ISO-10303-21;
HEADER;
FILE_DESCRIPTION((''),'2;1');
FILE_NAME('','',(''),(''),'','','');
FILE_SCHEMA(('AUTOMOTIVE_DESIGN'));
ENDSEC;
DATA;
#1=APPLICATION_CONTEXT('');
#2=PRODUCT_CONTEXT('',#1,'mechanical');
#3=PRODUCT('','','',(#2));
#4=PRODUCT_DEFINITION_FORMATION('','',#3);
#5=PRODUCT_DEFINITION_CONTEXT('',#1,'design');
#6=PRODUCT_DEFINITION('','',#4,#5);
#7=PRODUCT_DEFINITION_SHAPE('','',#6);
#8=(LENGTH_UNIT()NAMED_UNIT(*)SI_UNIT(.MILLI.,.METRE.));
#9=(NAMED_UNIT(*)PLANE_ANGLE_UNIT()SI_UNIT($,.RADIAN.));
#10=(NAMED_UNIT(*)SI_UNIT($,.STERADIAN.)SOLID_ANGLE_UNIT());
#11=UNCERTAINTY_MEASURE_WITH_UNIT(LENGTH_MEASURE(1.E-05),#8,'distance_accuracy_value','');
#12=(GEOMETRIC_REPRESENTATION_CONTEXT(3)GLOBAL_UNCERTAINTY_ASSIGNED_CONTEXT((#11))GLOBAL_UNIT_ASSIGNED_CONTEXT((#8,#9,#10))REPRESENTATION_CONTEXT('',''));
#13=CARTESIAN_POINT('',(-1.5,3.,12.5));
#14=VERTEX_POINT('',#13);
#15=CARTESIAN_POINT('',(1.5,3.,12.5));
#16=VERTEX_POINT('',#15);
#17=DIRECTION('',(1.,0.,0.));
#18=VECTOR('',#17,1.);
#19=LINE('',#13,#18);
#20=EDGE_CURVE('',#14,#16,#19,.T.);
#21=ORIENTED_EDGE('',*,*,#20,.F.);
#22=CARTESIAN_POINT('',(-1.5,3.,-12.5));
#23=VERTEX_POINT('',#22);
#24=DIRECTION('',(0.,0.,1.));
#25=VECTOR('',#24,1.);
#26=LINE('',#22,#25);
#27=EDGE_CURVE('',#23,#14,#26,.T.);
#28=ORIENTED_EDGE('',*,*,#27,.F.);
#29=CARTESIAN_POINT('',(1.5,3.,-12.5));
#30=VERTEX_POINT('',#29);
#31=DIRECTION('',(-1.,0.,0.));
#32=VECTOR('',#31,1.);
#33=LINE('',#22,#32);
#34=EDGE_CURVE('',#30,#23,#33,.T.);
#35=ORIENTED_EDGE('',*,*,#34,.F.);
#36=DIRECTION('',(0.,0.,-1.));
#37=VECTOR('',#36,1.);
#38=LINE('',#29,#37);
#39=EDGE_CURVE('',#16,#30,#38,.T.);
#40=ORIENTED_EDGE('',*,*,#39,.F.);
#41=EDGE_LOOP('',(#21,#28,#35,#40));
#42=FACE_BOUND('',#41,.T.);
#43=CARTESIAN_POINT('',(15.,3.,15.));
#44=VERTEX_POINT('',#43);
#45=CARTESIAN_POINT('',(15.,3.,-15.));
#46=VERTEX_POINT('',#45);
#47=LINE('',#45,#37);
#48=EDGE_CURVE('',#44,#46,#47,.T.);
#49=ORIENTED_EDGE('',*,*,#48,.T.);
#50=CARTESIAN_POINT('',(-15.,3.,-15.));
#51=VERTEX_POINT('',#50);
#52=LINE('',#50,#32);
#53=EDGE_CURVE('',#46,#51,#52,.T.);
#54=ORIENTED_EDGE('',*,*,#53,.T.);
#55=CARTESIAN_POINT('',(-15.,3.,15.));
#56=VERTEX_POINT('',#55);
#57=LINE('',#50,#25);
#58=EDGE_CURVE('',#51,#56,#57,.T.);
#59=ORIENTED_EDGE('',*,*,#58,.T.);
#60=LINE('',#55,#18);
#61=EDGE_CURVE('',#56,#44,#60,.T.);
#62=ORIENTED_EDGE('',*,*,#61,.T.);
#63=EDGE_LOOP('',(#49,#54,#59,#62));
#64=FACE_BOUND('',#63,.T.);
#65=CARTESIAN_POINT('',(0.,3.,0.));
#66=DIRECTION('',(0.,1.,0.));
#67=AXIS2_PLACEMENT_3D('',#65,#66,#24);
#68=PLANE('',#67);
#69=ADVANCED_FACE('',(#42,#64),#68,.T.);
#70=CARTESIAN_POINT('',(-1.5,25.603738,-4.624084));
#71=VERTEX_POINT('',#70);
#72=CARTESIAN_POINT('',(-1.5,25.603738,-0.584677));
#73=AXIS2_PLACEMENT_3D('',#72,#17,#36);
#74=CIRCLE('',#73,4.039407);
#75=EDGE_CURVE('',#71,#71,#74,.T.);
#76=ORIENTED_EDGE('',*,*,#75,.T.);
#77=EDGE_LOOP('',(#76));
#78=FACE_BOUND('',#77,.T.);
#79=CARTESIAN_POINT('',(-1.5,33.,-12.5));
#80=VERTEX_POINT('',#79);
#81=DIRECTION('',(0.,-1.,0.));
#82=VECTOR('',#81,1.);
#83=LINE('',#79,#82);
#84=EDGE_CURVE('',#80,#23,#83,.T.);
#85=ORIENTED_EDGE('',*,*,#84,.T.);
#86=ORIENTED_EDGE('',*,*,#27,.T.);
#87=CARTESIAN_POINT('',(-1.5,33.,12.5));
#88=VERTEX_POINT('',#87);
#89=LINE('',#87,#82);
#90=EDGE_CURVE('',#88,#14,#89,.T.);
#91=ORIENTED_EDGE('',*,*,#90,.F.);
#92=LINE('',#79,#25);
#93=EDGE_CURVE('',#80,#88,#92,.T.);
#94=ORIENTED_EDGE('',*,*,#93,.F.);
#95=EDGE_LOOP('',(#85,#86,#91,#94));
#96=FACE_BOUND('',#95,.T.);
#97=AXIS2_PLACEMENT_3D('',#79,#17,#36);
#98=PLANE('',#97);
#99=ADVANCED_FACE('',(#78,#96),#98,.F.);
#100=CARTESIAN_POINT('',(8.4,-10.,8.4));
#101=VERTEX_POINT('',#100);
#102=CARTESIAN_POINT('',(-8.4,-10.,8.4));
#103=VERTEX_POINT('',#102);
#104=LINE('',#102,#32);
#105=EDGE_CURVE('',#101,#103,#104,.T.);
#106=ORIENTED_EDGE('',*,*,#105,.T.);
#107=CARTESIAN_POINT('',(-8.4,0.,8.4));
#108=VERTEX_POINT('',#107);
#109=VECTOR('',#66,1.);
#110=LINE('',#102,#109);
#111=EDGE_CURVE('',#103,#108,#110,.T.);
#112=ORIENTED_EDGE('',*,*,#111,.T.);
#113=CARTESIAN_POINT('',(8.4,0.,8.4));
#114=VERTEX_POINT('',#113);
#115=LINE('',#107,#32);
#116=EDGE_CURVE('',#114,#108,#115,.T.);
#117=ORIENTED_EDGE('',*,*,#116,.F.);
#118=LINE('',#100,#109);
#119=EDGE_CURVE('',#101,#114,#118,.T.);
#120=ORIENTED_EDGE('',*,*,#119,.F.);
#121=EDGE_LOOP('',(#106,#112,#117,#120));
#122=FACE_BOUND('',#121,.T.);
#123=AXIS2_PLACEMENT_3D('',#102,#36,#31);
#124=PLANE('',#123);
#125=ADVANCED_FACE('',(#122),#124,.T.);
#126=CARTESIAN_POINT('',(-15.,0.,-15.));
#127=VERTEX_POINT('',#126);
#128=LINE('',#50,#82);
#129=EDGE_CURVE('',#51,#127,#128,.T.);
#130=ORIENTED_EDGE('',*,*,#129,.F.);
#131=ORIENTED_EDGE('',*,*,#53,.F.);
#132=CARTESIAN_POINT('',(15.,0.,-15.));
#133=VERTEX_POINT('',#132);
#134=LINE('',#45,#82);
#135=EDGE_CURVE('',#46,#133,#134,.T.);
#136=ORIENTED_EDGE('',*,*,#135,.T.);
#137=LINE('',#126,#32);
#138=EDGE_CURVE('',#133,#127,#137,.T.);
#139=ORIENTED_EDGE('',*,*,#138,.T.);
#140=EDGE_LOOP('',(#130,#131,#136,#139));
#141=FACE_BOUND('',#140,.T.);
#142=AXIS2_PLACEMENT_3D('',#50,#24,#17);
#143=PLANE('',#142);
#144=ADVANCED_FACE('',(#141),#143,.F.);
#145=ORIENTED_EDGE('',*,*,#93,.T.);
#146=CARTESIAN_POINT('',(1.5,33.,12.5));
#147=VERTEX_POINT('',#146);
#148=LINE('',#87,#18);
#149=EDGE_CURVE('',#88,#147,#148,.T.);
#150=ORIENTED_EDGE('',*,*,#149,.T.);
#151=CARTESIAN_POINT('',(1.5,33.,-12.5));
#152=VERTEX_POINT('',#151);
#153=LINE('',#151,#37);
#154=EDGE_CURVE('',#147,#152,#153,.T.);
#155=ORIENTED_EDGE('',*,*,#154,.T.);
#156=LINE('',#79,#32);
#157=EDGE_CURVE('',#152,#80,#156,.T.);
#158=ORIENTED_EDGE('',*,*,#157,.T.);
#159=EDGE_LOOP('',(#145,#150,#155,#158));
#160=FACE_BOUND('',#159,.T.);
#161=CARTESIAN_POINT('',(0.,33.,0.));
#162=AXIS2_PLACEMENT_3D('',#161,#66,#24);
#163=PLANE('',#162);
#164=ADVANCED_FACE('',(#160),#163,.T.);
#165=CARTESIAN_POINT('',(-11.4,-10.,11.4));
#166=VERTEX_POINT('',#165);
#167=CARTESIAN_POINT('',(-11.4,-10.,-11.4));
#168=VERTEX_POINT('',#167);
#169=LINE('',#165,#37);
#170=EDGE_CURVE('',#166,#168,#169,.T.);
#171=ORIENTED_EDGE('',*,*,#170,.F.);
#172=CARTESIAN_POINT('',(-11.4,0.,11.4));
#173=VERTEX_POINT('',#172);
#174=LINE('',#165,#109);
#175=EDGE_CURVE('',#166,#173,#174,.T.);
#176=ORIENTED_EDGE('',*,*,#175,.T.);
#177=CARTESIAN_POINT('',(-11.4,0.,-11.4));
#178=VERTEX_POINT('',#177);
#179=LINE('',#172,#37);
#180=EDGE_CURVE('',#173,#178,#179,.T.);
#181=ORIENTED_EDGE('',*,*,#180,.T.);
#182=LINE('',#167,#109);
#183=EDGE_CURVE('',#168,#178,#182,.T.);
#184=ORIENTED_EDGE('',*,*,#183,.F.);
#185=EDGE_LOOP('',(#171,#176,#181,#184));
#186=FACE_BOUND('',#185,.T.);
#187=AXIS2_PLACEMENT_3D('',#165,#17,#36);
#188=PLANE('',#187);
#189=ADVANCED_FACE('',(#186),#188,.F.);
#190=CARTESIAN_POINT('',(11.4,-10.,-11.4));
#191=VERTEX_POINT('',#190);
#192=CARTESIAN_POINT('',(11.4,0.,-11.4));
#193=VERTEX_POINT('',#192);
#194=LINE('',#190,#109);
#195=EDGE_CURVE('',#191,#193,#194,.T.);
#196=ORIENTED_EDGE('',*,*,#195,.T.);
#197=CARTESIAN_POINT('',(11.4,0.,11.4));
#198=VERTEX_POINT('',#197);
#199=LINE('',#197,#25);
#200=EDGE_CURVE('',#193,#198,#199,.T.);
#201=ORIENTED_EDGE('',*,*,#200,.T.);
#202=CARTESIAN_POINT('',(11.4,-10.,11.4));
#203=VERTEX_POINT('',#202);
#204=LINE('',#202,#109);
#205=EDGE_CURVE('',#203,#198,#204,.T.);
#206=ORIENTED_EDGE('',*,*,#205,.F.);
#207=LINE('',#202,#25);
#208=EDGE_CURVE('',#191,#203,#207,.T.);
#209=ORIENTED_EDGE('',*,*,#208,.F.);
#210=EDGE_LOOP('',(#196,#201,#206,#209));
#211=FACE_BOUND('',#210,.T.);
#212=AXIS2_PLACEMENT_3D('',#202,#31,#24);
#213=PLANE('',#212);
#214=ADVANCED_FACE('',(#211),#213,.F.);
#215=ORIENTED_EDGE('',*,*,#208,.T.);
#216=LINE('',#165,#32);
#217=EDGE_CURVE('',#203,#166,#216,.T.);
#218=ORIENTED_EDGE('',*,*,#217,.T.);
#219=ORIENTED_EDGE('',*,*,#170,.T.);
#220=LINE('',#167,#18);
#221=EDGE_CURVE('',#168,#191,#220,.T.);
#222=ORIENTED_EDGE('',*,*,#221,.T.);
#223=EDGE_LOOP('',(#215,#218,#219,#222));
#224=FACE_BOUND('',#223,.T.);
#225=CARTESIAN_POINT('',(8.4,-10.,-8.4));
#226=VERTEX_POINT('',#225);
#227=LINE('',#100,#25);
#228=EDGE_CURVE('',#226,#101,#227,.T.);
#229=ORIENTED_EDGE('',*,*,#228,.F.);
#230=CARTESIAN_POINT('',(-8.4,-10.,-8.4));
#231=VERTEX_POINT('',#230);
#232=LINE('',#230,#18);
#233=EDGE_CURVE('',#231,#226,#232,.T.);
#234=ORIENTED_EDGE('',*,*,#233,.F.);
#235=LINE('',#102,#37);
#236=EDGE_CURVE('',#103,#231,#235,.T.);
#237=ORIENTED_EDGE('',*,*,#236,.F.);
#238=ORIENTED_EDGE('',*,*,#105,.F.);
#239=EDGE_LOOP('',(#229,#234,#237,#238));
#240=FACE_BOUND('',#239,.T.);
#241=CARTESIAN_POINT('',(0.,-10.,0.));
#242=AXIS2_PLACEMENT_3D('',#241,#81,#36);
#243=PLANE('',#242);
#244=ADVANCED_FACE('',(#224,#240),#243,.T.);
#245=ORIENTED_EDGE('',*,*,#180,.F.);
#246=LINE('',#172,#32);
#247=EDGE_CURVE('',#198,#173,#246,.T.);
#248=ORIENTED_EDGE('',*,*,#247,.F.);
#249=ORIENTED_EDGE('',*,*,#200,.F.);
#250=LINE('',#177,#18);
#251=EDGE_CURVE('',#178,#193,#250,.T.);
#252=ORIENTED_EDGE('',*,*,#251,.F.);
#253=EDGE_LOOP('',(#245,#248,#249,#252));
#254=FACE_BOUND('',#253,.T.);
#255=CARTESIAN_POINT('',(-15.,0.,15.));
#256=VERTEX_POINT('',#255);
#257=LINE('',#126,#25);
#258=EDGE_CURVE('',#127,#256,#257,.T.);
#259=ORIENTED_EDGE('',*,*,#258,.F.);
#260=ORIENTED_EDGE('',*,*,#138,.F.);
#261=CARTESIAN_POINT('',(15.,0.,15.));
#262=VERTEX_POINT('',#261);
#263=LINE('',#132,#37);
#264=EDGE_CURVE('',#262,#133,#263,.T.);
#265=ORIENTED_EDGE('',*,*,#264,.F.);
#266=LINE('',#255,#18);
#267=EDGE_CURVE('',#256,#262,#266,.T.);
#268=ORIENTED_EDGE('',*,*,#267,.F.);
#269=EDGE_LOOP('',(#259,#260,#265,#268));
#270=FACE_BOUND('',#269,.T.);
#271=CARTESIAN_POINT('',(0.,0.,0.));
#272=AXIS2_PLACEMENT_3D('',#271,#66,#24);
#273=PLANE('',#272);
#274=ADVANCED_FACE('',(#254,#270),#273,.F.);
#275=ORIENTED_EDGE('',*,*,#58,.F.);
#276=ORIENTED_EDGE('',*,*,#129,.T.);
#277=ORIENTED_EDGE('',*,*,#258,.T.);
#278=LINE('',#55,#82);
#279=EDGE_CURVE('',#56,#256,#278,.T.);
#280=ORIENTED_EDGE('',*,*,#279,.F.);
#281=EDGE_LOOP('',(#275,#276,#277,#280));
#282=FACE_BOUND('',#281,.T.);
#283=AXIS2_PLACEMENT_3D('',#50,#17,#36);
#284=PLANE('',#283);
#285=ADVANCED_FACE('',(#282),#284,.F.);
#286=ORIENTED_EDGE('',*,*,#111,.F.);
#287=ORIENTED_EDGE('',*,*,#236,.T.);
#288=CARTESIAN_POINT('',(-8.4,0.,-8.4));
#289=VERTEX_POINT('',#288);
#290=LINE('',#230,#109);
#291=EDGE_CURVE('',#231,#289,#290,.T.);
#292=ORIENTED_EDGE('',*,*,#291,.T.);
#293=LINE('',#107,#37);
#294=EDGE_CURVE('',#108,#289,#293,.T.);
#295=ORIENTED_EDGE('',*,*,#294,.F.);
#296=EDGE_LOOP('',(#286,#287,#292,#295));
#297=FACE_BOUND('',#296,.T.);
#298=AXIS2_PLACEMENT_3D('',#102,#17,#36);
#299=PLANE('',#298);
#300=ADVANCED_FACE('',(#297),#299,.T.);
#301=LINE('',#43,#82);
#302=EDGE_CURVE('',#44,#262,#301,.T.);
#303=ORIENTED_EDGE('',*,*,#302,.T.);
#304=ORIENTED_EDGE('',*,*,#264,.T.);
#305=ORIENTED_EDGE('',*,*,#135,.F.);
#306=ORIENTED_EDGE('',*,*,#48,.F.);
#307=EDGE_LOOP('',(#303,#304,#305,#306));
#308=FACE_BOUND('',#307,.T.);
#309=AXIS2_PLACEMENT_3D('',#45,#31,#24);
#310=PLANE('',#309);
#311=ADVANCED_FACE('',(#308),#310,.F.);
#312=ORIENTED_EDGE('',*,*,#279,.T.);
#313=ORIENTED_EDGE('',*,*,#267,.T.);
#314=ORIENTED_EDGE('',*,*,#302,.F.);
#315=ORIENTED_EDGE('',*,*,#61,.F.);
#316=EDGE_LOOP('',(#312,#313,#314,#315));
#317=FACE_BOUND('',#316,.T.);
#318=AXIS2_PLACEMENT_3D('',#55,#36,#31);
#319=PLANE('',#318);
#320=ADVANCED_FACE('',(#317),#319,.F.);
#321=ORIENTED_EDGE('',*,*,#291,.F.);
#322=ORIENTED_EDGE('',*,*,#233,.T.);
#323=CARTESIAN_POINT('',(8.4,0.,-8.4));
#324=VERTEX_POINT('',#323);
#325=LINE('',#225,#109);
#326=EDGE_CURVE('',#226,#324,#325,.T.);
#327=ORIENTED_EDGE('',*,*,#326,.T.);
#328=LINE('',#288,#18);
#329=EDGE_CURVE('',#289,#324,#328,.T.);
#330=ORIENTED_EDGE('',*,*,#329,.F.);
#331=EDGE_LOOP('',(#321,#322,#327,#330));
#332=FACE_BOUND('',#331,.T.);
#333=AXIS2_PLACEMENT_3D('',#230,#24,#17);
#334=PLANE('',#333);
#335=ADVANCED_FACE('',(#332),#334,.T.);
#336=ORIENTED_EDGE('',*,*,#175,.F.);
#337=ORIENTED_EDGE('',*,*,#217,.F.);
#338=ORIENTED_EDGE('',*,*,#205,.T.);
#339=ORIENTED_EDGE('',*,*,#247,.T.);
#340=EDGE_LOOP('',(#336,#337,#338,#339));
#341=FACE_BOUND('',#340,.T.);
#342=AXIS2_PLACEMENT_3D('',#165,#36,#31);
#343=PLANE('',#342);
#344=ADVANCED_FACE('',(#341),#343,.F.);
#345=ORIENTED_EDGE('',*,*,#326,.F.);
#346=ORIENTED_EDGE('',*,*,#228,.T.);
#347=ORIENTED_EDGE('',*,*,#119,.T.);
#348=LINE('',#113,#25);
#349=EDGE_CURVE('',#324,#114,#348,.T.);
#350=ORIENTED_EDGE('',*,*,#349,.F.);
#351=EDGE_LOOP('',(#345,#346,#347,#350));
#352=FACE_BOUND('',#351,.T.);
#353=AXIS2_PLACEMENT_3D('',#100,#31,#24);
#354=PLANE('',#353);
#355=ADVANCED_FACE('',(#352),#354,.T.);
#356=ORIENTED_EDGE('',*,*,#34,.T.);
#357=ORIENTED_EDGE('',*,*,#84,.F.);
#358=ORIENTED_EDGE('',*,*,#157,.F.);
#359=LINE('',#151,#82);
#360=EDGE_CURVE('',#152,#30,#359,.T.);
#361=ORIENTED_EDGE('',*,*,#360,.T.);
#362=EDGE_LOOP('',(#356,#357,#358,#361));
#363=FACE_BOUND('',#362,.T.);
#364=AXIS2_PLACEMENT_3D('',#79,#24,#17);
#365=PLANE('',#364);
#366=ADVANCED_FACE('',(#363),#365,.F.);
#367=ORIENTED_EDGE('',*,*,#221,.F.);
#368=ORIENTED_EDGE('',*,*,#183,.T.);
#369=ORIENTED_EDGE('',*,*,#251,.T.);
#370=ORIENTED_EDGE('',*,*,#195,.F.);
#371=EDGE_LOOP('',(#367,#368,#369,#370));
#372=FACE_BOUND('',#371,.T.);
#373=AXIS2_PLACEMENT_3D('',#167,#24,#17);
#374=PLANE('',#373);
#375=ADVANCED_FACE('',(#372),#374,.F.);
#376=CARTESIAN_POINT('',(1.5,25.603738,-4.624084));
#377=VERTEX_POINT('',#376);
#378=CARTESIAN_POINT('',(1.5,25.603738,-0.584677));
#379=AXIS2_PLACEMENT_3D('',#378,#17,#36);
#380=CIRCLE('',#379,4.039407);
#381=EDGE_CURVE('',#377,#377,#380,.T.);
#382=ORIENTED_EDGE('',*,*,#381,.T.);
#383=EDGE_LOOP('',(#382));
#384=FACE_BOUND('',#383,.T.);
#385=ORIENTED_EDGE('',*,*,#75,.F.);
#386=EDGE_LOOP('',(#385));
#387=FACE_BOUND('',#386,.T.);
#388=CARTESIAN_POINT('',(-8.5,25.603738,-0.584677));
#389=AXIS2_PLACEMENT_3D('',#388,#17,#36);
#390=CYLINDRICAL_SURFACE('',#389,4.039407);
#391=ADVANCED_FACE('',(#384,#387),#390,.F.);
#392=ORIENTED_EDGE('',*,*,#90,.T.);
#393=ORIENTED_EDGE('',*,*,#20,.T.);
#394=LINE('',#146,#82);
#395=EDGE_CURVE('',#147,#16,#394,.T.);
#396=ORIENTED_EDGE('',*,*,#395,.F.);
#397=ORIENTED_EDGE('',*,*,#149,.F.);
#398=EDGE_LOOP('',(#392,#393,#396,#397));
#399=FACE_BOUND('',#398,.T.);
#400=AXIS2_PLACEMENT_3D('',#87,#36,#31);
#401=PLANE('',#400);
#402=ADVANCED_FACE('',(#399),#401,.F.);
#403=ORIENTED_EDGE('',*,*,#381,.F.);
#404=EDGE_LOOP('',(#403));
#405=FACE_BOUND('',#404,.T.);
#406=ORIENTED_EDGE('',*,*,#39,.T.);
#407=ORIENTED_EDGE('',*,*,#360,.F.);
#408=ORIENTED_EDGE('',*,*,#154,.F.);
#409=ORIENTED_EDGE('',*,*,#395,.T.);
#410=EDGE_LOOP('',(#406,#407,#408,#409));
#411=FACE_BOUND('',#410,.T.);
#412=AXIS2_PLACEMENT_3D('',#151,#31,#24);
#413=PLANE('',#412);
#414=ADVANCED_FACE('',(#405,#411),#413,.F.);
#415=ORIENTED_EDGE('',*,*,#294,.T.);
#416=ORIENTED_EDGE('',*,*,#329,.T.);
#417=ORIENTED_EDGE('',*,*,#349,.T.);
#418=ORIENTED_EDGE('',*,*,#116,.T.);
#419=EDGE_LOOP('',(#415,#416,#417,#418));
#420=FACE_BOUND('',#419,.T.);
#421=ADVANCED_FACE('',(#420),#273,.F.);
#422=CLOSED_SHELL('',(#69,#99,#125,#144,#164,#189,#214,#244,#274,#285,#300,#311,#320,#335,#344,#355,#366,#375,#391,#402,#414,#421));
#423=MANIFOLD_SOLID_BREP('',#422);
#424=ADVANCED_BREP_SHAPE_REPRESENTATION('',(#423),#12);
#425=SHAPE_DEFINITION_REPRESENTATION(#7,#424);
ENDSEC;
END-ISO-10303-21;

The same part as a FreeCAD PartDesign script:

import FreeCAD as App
import Part
import Sketcher

V = App.Vector
Q = App.Units.Quantity

doc = App.newDocument("Part")
body = doc.addObject("PartDesign::Body", "Body")

# Sketch on XZ plane
sketch1 = body.newObject("Sketcher::SketchObject", "Sketch")
sketch1.AttachmentSupport = (doc.getObject("XZ_Plane"), [""])
sketch1.MapMode = "FlatFace"
sketch1.addGeometry([
    Part.LineSegment(V(-15, -15, 0), V(-15, 15, 0)),
    Part.LineSegment(V(-15, 15, 0), V(15, 15, 0)),
    Part.LineSegment(V(15, 15, 0), V(15, -15, 0)),
    Part.LineSegment(V(15, -15, 0), V(-15, -15, 0)),
], False)
sketch1.addConstraint([
    Sketcher.Constraint("Coincident", 0, 2, 1, 1),
    Sketcher.Constraint("Coincident", 1, 2, 2, 1),
    Sketcher.Constraint("Coincident", 2, 2, 3, 1),
    Sketcher.Constraint("Coincident", 3, 2, 0, 1),
    Sketcher.Constraint("Vertical", 0),
    Sketcher.Constraint("Horizontal", 1),
    Sketcher.Constraint("Vertical", 2),
    Sketcher.Constraint("Horizontal", 3),
    Sketcher.Constraint("Symmetric", 0, 2, 2, 2, -1, 1),
    Sketcher.Constraint("Equal", 3, 0),
    Sketcher.Constraint("DistanceX", 1, 1, 1, 2, Q("30 mm")),
])
pad1 = body.newObject("PartDesign::Pad", "Pad")
pad1.Profile = sketch1
pad1.Length = 3
pad1.Reversed = True

# Sketch on XZ plane
sketch2 = body.newObject("Sketcher::SketchObject", "Sketch001")
sketch2.AttachmentSupport = (doc.getObject("XZ_Plane"), [""])
sketch2.MapMode = "FlatFace"
sketch2.AttachmentOffset = App.Placement(V(0, 0, -3), App.Rotation())
sketch2.addGeometry([
    Part.LineSegment(V(-1.5, -12.5, 0), V(-1.5, 12.5, 0)),
    Part.LineSegment(V(-1.5, 12.5, 0), V(1.5, 12.5, 0)),
    Part.LineSegment(V(1.5, 12.5, 0), V(1.5, -12.5, 0)),
    Part.LineSegment(V(1.5, -12.5, 0), V(-1.5, -12.5, 0)),
], False)
sketch2.addConstraint([
    Sketcher.Constraint("Coincident", 0, 2, 1, 1),
    Sketcher.Constraint("Coincident", 1, 2, 2, 1),
    Sketcher.Constraint("Coincident", 2, 2, 3, 1),
    Sketcher.Constraint("Coincident", 3, 2, 0, 1),
    Sketcher.Constraint("Vertical", 0),
    Sketcher.Constraint("Horizontal", 1),
    Sketcher.Constraint("Vertical", 2),
    Sketcher.Constraint("Horizontal", 3),
    Sketcher.Constraint("Symmetric", 0, 2, 2, 2, -1, 1),
    Sketcher.Constraint("DistanceX", 1, 1, 1, 2, Q("3 mm")),
    Sketcher.Constraint("DistanceY", 0, 1, 0, 2, Q("25 mm")),
])
pad2 = body.newObject("PartDesign::Pad", "Pad001")
pad2.Profile = sketch2
pad2.Length = 30
pad2.Reversed = True

# Sketch on YZ plane
sketch3 = body.newObject("Sketcher::SketchObject", "Sketch002")
sketch3.AttachmentSupport = (doc.getObject("YZ_Plane"), [""])
sketch3.MapMode = "FlatFace"
sketch3.AttachmentOffset = App.Placement(V(0, 0, 1.5), App.Rotation())
sketch3.addGeometry(Part.Circle(V(25.6, -0.6, 0), V(0, 0, 1), 4), False)
sketch3.addConstraint([
    Sketcher.Constraint("Diameter", 0, Q("8.078814 mm")),
    Sketcher.Constraint("DistanceX", -1, 1, 0, 3, Q("25.603738 mm")),
    Sketcher.Constraint("DistanceY", 0, 3, -1, 1, Q("0.584677 mm")),
])
pocket1 = body.newObject("PartDesign::Pocket", "Pocket")
pocket1.Profile = sketch3
pocket1.Length = 10

# Sketch on XZ plane
sketch4 = body.newObject("Sketcher::SketchObject", "Sketch003")
sketch4.AttachmentSupport = (doc.getObject("XZ_Plane"), [""])
sketch4.MapMode = "FlatFace"
sketch4.addGeometry([
    Part.LineSegment(V(-11, 11, 0), V(-11, -11, 0)),  # 0
    Part.LineSegment(V(-11, -11, 0), V(11, -11, 0)),  # 1
    Part.LineSegment(V(11, -11, 0), V(11, 11, 0)),  # 2
    Part.LineSegment(V(11, 11, 0), V(-11, 11, 0)),  # 3
    Part.LineSegment(V(8, -8, 0), V(-8, -8, 0)),  # 4
    Part.LineSegment(V(-8, -8, 0), V(-8, 8, 0)),  # 5
    Part.LineSegment(V(-8, 8, 0), V(8, 8, 0)),  # 6
    Part.LineSegment(V(8, 8, 0), V(8, -8, 0)),  # 7
], False)
sketch4.addConstraint([
    Sketcher.Constraint("Coincident", 0, 2, 1, 1),
    Sketcher.Constraint("Coincident", 1, 2, 2, 1),
    Sketcher.Constraint("Coincident", 2, 2, 3, 1),
    Sketcher.Constraint("Coincident", 3, 2, 0, 1),
    Sketcher.Constraint("Coincident", 4, 2, 5, 1),
    Sketcher.Constraint("Coincident", 5, 2, 6, 1),
    Sketcher.Constraint("Coincident", 6, 2, 7, 1),
    Sketcher.Constraint("Coincident", 7, 2, 4, 1),
    Sketcher.Constraint("Vertical", 0),
    Sketcher.Constraint("Horizontal", 1),
    Sketcher.Constraint("Vertical", 2),
    Sketcher.Constraint("Horizontal", 3),
    Sketcher.Constraint("Horizontal", 4),
    Sketcher.Constraint("Vertical", 5),
    Sketcher.Constraint("Horizontal", 6),
    Sketcher.Constraint("Vertical", 7),
    Sketcher.Constraint("Symmetric", 0, 2, 2, 2, -1, 1),
    Sketcher.Constraint("Symmetric", 4, 2, 6, 2, -1, 1),
    Sketcher.Constraint("Equal", 3, 0),
    Sketcher.Constraint("Equal", 6, 5),
    Sketcher.Constraint("DistanceX", 1, 1, 1, 2, Q("22.8 mm")),
    Sketcher.Constraint("DistanceX", 4, 2, 4, 1, Q("16.8 mm")),
])
pad3 = body.newObject("PartDesign::Pad", "Pad002")
pad3.Profile = sketch4
pad3.Length = 10

doc.recompute()
